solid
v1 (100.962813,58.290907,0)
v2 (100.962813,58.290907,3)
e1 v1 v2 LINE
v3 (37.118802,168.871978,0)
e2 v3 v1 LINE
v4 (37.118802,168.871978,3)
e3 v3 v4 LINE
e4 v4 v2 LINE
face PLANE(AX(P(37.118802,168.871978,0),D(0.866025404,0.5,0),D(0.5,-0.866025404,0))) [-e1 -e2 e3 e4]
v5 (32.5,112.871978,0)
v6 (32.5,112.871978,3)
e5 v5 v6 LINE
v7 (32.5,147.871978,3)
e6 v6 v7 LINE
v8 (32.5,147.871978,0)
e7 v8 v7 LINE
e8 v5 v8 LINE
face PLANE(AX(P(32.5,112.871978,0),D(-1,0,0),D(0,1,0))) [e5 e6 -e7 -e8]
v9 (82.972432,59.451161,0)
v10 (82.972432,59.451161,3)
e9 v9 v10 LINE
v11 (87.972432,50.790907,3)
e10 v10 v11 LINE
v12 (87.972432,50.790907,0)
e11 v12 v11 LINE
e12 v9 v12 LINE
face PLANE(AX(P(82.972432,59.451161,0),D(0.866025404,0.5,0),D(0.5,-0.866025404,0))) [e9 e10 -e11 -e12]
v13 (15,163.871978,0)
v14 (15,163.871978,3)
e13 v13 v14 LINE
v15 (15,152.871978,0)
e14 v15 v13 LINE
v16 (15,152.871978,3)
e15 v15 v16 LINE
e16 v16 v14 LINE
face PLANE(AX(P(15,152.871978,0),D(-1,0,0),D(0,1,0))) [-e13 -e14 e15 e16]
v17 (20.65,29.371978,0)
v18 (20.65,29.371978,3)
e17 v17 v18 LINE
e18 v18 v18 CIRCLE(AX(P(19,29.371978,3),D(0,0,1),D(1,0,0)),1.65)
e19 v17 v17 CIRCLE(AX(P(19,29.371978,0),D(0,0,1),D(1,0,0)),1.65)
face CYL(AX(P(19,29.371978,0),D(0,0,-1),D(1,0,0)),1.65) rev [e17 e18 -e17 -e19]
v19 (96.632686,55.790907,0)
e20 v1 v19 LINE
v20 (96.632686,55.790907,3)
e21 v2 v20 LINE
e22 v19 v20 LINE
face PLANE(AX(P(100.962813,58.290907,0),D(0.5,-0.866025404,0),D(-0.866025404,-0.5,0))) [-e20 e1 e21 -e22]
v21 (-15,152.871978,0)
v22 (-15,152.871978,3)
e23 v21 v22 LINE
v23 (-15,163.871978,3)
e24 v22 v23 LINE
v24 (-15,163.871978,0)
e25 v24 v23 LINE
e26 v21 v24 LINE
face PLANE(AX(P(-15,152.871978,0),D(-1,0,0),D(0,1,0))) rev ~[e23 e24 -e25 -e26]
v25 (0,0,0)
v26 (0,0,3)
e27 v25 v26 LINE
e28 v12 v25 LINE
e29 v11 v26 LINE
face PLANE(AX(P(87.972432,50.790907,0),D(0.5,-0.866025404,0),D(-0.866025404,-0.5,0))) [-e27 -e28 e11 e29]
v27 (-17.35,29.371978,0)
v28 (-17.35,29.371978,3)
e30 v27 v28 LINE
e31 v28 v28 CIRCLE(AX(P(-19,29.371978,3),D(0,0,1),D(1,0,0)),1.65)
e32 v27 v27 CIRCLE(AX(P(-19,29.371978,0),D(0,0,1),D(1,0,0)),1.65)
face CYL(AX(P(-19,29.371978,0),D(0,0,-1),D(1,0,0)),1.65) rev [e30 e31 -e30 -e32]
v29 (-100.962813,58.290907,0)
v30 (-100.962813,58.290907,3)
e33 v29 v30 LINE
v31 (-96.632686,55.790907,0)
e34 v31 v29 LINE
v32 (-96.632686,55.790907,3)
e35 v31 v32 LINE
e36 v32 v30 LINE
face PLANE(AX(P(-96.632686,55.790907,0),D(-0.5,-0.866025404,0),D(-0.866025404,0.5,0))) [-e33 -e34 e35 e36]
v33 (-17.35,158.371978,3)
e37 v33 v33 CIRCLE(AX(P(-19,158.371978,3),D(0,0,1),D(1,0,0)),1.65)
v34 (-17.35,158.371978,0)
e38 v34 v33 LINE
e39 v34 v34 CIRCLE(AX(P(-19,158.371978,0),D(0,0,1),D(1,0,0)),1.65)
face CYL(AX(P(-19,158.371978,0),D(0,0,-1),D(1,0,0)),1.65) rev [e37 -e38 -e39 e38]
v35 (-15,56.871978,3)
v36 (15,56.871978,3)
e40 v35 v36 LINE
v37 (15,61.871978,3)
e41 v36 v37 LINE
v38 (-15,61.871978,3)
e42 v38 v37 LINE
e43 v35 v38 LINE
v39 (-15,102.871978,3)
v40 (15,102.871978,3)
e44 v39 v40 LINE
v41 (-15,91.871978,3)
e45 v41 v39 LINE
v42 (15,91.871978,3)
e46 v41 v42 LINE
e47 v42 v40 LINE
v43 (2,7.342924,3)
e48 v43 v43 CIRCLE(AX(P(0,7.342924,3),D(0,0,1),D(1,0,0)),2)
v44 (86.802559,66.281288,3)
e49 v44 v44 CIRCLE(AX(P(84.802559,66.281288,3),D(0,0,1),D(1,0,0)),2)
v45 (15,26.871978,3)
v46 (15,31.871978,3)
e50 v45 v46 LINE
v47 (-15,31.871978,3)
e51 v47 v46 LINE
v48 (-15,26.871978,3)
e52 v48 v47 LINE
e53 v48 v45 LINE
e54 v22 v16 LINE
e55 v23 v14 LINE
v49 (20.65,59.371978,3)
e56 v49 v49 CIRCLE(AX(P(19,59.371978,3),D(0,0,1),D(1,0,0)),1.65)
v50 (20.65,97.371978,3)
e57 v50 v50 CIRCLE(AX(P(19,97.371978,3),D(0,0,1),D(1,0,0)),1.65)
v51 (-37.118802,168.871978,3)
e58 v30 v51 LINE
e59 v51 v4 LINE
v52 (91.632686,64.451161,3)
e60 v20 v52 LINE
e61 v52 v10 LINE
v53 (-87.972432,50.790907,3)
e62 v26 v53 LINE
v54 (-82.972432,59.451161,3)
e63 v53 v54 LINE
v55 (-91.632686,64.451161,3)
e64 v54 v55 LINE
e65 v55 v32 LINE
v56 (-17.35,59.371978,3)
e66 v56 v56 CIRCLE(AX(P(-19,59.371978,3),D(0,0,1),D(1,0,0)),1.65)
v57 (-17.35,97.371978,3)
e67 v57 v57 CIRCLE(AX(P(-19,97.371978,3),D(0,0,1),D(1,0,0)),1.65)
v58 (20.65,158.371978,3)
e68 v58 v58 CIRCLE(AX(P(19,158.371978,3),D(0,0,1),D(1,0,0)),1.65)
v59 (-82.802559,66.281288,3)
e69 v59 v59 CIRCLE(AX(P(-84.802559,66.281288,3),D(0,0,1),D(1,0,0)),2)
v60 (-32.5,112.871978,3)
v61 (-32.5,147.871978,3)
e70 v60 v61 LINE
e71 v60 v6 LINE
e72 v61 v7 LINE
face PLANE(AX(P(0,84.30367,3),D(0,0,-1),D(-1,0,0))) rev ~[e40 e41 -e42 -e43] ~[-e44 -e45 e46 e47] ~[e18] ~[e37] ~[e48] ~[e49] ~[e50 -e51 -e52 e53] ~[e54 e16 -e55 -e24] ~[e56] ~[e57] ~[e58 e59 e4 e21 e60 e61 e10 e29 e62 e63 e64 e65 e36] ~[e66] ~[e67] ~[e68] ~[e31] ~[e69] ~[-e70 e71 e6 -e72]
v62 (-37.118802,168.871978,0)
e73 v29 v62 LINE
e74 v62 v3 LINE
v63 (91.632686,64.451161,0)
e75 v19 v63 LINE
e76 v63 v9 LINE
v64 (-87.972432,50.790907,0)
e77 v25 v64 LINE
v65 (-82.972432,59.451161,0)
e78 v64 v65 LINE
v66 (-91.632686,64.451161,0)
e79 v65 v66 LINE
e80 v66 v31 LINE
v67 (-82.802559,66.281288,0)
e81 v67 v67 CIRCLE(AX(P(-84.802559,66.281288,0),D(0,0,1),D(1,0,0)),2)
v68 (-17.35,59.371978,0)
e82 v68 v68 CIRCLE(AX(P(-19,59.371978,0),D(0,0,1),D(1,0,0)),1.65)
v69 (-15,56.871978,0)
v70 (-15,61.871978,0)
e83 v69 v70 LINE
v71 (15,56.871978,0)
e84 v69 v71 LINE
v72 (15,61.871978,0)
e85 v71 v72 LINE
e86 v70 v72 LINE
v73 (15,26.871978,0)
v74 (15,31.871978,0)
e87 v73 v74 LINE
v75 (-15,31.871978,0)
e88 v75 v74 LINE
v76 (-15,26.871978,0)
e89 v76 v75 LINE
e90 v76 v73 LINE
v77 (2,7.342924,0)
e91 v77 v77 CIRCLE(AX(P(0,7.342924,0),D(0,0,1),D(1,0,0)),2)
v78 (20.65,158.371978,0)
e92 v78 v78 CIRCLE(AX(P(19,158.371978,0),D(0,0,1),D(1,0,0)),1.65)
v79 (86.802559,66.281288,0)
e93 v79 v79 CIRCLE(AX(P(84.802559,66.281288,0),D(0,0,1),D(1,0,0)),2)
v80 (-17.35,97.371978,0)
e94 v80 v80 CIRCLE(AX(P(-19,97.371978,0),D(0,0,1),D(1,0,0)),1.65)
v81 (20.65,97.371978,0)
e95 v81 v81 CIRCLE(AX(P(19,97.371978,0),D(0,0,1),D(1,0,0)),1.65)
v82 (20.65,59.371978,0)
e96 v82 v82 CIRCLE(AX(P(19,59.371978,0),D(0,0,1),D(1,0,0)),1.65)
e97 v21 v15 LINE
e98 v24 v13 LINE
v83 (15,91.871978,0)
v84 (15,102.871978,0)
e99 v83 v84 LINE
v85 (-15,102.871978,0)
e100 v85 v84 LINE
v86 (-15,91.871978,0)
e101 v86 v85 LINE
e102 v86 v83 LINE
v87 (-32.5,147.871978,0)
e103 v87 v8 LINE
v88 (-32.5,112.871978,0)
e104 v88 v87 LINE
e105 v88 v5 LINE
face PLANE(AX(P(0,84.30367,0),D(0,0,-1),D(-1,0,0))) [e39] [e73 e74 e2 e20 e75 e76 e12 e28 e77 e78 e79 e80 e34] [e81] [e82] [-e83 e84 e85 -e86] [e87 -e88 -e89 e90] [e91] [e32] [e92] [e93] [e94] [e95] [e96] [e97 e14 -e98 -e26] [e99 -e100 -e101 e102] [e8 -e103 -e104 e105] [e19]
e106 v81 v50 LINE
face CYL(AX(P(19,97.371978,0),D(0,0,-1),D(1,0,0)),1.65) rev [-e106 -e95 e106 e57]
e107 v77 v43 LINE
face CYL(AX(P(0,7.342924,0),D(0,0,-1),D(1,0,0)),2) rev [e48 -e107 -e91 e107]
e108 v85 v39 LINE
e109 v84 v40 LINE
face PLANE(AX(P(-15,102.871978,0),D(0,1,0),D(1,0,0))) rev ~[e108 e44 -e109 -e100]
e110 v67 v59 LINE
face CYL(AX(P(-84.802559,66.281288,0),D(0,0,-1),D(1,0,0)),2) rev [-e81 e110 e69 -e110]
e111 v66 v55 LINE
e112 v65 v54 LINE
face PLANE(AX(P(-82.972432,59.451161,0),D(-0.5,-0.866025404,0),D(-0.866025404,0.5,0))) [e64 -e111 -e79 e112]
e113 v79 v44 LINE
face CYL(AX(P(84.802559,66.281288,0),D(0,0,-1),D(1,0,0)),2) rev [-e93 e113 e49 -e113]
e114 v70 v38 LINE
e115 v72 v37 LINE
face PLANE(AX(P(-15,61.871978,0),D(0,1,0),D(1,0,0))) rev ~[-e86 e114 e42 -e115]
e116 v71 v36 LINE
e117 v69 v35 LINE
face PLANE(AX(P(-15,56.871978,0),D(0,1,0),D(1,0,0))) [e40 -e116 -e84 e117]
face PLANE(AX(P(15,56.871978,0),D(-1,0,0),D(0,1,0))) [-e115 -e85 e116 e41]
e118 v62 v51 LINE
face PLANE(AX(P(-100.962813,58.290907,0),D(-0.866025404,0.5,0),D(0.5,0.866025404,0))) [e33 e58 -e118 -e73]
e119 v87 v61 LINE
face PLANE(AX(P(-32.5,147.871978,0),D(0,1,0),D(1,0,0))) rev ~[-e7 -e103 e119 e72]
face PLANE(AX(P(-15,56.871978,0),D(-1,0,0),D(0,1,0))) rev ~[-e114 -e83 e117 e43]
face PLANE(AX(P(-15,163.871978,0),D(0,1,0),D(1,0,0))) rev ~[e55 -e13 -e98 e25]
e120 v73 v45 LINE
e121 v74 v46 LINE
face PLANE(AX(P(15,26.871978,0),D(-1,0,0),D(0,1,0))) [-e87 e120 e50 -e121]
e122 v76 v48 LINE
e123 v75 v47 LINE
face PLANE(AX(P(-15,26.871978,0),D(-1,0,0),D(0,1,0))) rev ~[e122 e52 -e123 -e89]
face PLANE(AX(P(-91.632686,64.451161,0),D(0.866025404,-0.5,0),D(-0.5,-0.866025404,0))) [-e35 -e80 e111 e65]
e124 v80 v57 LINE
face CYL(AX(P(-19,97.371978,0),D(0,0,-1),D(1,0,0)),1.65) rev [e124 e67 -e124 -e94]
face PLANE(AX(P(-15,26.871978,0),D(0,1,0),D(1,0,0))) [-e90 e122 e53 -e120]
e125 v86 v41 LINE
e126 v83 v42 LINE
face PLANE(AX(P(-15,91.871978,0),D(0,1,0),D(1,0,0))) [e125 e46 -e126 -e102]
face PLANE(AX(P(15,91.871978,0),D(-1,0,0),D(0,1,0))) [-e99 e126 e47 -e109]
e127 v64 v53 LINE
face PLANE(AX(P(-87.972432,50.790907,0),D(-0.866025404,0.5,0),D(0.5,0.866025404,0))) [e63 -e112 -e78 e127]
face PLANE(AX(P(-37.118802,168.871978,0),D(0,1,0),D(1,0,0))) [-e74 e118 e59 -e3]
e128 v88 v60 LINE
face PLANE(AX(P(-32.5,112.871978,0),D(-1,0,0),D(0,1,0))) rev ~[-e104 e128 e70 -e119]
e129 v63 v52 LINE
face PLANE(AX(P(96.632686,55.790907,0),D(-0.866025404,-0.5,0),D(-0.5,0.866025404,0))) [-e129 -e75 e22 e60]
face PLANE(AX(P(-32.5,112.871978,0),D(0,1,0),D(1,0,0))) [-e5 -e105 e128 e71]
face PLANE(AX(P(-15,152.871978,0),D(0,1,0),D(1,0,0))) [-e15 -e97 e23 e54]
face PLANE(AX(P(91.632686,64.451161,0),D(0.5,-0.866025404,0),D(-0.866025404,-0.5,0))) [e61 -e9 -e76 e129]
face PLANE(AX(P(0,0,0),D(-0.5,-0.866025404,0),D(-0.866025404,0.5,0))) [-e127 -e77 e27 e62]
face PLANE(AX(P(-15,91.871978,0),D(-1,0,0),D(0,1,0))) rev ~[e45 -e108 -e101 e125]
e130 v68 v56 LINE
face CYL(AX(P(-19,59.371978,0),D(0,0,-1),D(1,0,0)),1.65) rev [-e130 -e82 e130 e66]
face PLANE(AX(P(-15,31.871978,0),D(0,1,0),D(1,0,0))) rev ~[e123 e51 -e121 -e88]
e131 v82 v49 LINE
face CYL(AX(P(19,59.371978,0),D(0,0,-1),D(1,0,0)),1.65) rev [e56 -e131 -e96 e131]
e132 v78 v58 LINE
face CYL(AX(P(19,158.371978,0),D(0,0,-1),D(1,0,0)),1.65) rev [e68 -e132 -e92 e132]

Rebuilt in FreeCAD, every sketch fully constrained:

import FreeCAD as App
import Part
import Sketcher

V = App.Vector
Q = App.Units.Quantity


def add_polygon(sketch, points):
    """Adds a closed chain of lines whose ends are joined by coincident constraints."""
    first, n = sketch.GeometryCount, len(points)
    for a, b in zip(points, points[1:] + points[:1]):
        sketch.addGeometry(Part.LineSegment(App.Vector(*a, 0), App.Vector(*b, 0)), False)
    for i in range(n):
        sketch.addConstraint(Sketcher.Constraint("Coincident", first + i, 2, first + (i + 1) % n, 1))

doc = App.newDocument("Part")
params = doc.addObject("Spreadsheet::Sheet", "Params")
for row, (alias, value) in enumerate([
    ("sketch1_diameter", "4 mm"),
    ("sketch1_diameter2", "3.3 mm"),
    ("sketch1_width", "30 mm"),
    ("sketch1_width2", "65 mm"),
    ("sketch1_height", "5 mm"),
    ("pad1_length", "3 mm"),
], start=1):
    params.set(f"A{row}", alias)
    params.set(f"B{row}", "=" + value)
    params.setAlias(f"B{row}", alias)

body = doc.addObject("PartDesign::Body", "Body")

# Sketch on XY plane
sketch1 = body.newObject("Sketcher::SketchObject", "Sketch")
sketch1.AttachmentSupport = (doc.getObject("XY_Plane"), [""])
sketch1.MapMode = "FlatFace"
add_polygon(sketch1, [(101, 58.3), (37.1, 168.9), (-37.1, 168.9), (-101, 58.3), (-96.6, 55.8), (-91.6, 64.5), (-83, 59.5), (-88, 50.8), (0, 0), (88, 50.8), (83, 59.5), (91.6, 64.5), (96.6, 55.8)])  # lines 0-12
sketch1.addGeometry(Part.Circle(V(19, 29.4, 0), V(0, 0, 1), 1.6), False)  # 13
sketch1.addGeometry(Part.Circle(V(84.8, 66.3, 0), V(0, 0, 1), 2), False)  # 14
sketch1.addGeometry(Part.Circle(V(19, 59.4, 0), V(0, 0, 1), 1.6), False)  # 15
sketch1.addGeometry(Part.Circle(V(0, 7.3, 0), V(0, 0, 1), 2), False)  # 16
add_polygon(sketch1, [(-15, 26.9), (-15, 31.9), (15, 31.9), (15, 26.9)])  # lines 17-20
sketch1.addGeometry(Part.Circle(V(-19, 29.4, 0), V(0, 0, 1), 1.6), False)  # 21
add_polygon(sketch1, [(-15, 56.9), (-15, 61.9), (15, 61.9), (15, 56.9)])  # lines 22-25
sketch1.addGeometry(Part.Circle(V(-19, 59.4, 0), V(0, 0, 1), 1.6), False)  # 26
sketch1.addGeometry(Part.Circle(V(-84.8, 66.3, 0), V(0, 0, 1), 2), False)  # 27
sketch1.addGeometry(Part.Circle(V(19, 97.4, 0), V(0, 0, 1), 1.6), False)  # 28
add_polygon(sketch1, [(-32.5, 112.9), (-32.5, 147.9), (32.5, 147.9), (32.5, 112.9)])  # lines 29-32
sketch1.addGeometry(Part.Circle(V(19, 158.4, 0), V(0, 0, 1), 1.6), False)  # 33
add_polygon(sketch1, [(-15, 91.9), (-15, 102.9), (15, 102.9), (15, 91.9)])  # lines 34-37
sketch1.addGeometry(Part.Circle(V(-19, 97.4, 0), V(0, 0, 1), 1.6), False)  # 38
add_polygon(sketch1, [(-15, 152.9), (-15, 163.9), (15, 163.9), (15, 152.9)])  # lines 39-42
sketch1.addGeometry(Part.Circle(V(-19, 158.4, 0), V(0, 0, 1), 1.6), False)  # 43
sketch1.addConstraint(Sketcher.Constraint("Horizontal", 1))
sketch1.addConstraint(Sketcher.Constraint("Vertical", 17))
sketch1.addConstraint(Sketcher.Constraint("Horizontal", 18))
sketch1.addConstraint(Sketcher.Constraint("Vertical", 19))
sketch1.addConstraint(Sketcher.Constraint("Horizontal", 20))
sketch1.addConstraint(Sketcher.Constraint("Vertical", 22))
sketch1.addConstraint(Sketcher.Constraint("Horizontal", 23))
sketch1.addConstraint(Sketcher.Constraint("Vertical", 24))
sketch1.addConstraint(Sketcher.Constraint("Horizontal", 25))
sketch1.addConstraint(Sketcher.Constraint("Vertical", 29))
sketch1.addConstraint(Sketcher.Constraint("Horizontal", 30))
sketch1.addConstraint(Sketcher.Constraint("Vertical", 31))
sketch1.addConstraint(Sketcher.Constraint("Horizontal", 32))
sketch1.addConstraint(Sketcher.Constraint("Vertical", 34))
sketch1.addConstraint(Sketcher.Constraint("Horizontal", 35))
sketch1.addConstraint(Sketcher.Constraint("Vertical", 36))
sketch1.addConstraint(Sketcher.Constraint("Horizontal", 37))
sketch1.addConstraint(Sketcher.Constraint("Vertical", 39))
sketch1.addConstraint(Sketcher.Constraint("Horizontal", 40))
sketch1.addConstraint(Sketcher.Constraint("Vertical", 41))
sketch1.addConstraint(Sketcher.Constraint("Horizontal", 42))
sketch1.addConstraint(Sketcher.Constraint("Coincident", 7, 2, -1, 1))
sketch1.addConstraint(Sketcher.Constraint("Equal", 13, 15))
sketch1.addConstraint(Sketcher.Constraint("Equal", 14, 16))
sketch1.addConstraint(Sketcher.Constraint("Equal", 15, 21))
sketch1.addConstraint(Sketcher.Constraint("Equal", 21, 26))
sketch1.addConstraint(Sketcher.Constraint("Equal", 16, 27))
sketch1.addConstraint(Sketcher.Constraint("Equal", 26, 28))
sketch1.addConstraint(Sketcher.Constraint("Equal", 28, 33))
sketch1.addConstraint(Sketcher.Constraint("Equal", 33, 38))
sketch1.addConstraint(Sketcher.Constraint("Equal", 38, 43))
sketch1.addConstraint(Sketcher.Constraint("Symmetric", 13, 3, 21, 3, -2))
sketch1.addConstraint(Sketcher.Constraint("Symmetric", 15, 3, 26, 3, -2))
sketch1.addConstraint(Sketcher.Constraint("Symmetric", 14, 3, 27, 3, -2))
sketch1.addConstraint(Sketcher.Constraint("Symmetric", 28, 3, 38, 3, -2))
sketch1.addConstraint(Sketcher.Constraint("Symmetric", 33, 3, 43, 3, -2))
sketch1.addConstraint(Sketcher.Constraint("Symmetric", 6, 2, 8, 2, -2))
sketch1.addConstraint(Sketcher.Constraint("Symmetric", 5, 2, 9, 2, -2))
sketch1.addConstraint(Sketcher.Constraint("Symmetric", 4, 2, 10, 2, -2))
sketch1.addConstraint(Sketcher.Constraint("Symmetric", 3, 2, 11, 2, -2))
sketch1.addConstraint(Sketcher.Constraint("Symmetric", 2, 2, 12, 2, -2))
sketch1.addConstraint(Sketcher.Constraint("PointOnObject", 16, 3, -2))
sketch1.addConstraint(Sketcher.Constraint("Perpendicular", 2, 3))
sketch1.addConstraint(Sketcher.Constraint("Perpendicular", 3, 4))
sketch1.addConstraint(Sketcher.Constraint("Perpendicular", 4, 5))
sketch1.addConstraint(Sketcher.Constraint("Perpendicular", 5, 6))
sketch1.addConstraint(Sketcher.Constraint("Perpendicular", 6, 7))
sketch1.addConstraint(Sketcher.Constraint("Perpendicular", 0, 8))
sketch1.addConstraint(Sketcher.Constraint("Vertical", 13, 3, 15, 3))
sketch1.addConstraint(Sketcher.Constraint("Vertical", 15, 3, 28, 3))
sketch1.addConstraint(Sketcher.Constraint("Vertical", 28, 3, 33, 3))
sketch1.addConstraint(Sketcher.Constraint("Vertical", 20, 2, 22, 2))
sketch1.addConstraint(Sketcher.Constraint("Vertical", 19, 2, 23, 2))
sketch1.addConstraint(Sketcher.Constraint("Vertical", 25, 2, 34, 2))
sketch1.addConstraint(Sketcher.Constraint("Vertical", 24, 2, 35, 2))
sketch1.addConstraint(Sketcher.Constraint("Vertical", 37, 2, 39, 2))
sketch1.addConstraint(Sketcher.Constraint("Vertical", 36, 2, 40, 2))
sketch1.addConstraint(Sketcher.Constraint("Equal", 19, 22))
sketch1.addConstraint(Sketcher.Constraint("Equal", 36, 39))
sketch1.addConstraint(Sketcher.Constraint("Equal", 4, 5))
sketch1.addConstraint(Sketcher.Constraint("Equal", 5, 6))
sketch1.addConstraint(Sketcher.Constraint("Diameter", 14, 4.0))
sketch1.addConstraint(Sketcher.Constraint("Diameter", 13, 3.3))
sketch1.addConstraint(Sketcher.Constraint("DistanceX", 18, 1, 18, 2, 30.0))
sketch1.addConstraint(Sketcher.Constraint("DistanceX", 30, 1, 30, 2, 65.0))
sketch1.addConstraint(Sketcher.Constraint("DistanceY", 17, 1, 17, 2, 5.0))
sketch1.addConstraint(Sketcher.Constraint("DistanceY", 29, 1, 29, 2, 35.0))
sketch1.addConstraint(Sketcher.Constraint("DistanceY", 34, 1, 34, 2, 11.0))
sketch1.addConstraint(Sketcher.Constraint("Angle", 0, Q("120 deg")))
sketch1.addConstraint(Sketcher.Constraint("Distance", 3, 5.0))
sketch1.addConstraint(Sketcher.Constraint("Distance", 4, 10.0))
sketch1.addConstraint(Sketcher.Constraint("DistanceX", -1, 1, 13, 3, 19.0))
sketch1.addConstraint(Sketcher.Constraint("DistanceX", 17, 2, -1, 1, 15.0))
sketch1.addConstraint(Sketcher.Constraint("DistanceY", 13, 3, 15, 3, 30.0))
sketch1.addConstraint(Sketcher.Constraint("DistanceY", 15, 3, 28, 3, 38.0))
sketch1.addConstraint(Sketcher.Constraint("DistanceY", 28, 3, 33, 3, 61.0))
sketch1.addConstraint(Sketcher.Constraint("DistanceY", 17, 2, 22, 2, 30.0))
sketch1.addConstraint(Sketcher.Constraint("DistanceY", 29, 2, 1, 2, 21.0))
sketch1.addConstraint(Sketcher.Constraint("DistanceY", 23, 2, 31, 2, 51.0))
sketch1.addConstraint(Sketcher.Constraint("DistanceY", 34, 2, 32, 2, 10.0))
sketch1.addConstraint(Sketcher.Constraint("DistanceY", 39, 2, 1, 2, 5.0))
sketch1.addConstraint(Sketcher.Constraint("DistanceX", 29, 2, -1, 1, 32.5))
sketch1.addConstraint(Sketcher.Constraint("DistanceY", 33, 3, 0, 2, 10.5))
sketch1.addConstraint(Sketcher.Constraint("Distance", 0, 127.688022))
sketch1.addConstraint(Sketcher.Constraint("DistanceX", 1, 2, 1, 1, 74.237604))
sketch1.addConstraint(Sketcher.Constraint("DistanceX", -1, 1, 14, 3, 84.802559))
sketch1.addConstraint(Sketcher.Constraint("DistanceY", -1, 1, 14, 3, 66.281288))
sketch1.addConstraint(Sketcher.Constraint("DistanceY", -1, 1, 16, 3, 7.342924))
sketch1.setExpression("Constraints[94]", "Params.sketch1_diameter")
sketch1.setExpression("Constraints[95]", "Params.sketch1_diameter2")
sketch1.setExpression("Constraints[96]", "Params.sketch1_width")
sketch1.setExpression("Constraints[97]", "Params.sketch1_width2")
sketch1.setExpression("Constraints[98]", "Params.sketch1_height")
pad1 = body.newObject("PartDesign::Pad", "Pad")
pad1.Profile = sketch1
pad1.setExpression("Length", "Params.pad1_length")

doc.recompute()
